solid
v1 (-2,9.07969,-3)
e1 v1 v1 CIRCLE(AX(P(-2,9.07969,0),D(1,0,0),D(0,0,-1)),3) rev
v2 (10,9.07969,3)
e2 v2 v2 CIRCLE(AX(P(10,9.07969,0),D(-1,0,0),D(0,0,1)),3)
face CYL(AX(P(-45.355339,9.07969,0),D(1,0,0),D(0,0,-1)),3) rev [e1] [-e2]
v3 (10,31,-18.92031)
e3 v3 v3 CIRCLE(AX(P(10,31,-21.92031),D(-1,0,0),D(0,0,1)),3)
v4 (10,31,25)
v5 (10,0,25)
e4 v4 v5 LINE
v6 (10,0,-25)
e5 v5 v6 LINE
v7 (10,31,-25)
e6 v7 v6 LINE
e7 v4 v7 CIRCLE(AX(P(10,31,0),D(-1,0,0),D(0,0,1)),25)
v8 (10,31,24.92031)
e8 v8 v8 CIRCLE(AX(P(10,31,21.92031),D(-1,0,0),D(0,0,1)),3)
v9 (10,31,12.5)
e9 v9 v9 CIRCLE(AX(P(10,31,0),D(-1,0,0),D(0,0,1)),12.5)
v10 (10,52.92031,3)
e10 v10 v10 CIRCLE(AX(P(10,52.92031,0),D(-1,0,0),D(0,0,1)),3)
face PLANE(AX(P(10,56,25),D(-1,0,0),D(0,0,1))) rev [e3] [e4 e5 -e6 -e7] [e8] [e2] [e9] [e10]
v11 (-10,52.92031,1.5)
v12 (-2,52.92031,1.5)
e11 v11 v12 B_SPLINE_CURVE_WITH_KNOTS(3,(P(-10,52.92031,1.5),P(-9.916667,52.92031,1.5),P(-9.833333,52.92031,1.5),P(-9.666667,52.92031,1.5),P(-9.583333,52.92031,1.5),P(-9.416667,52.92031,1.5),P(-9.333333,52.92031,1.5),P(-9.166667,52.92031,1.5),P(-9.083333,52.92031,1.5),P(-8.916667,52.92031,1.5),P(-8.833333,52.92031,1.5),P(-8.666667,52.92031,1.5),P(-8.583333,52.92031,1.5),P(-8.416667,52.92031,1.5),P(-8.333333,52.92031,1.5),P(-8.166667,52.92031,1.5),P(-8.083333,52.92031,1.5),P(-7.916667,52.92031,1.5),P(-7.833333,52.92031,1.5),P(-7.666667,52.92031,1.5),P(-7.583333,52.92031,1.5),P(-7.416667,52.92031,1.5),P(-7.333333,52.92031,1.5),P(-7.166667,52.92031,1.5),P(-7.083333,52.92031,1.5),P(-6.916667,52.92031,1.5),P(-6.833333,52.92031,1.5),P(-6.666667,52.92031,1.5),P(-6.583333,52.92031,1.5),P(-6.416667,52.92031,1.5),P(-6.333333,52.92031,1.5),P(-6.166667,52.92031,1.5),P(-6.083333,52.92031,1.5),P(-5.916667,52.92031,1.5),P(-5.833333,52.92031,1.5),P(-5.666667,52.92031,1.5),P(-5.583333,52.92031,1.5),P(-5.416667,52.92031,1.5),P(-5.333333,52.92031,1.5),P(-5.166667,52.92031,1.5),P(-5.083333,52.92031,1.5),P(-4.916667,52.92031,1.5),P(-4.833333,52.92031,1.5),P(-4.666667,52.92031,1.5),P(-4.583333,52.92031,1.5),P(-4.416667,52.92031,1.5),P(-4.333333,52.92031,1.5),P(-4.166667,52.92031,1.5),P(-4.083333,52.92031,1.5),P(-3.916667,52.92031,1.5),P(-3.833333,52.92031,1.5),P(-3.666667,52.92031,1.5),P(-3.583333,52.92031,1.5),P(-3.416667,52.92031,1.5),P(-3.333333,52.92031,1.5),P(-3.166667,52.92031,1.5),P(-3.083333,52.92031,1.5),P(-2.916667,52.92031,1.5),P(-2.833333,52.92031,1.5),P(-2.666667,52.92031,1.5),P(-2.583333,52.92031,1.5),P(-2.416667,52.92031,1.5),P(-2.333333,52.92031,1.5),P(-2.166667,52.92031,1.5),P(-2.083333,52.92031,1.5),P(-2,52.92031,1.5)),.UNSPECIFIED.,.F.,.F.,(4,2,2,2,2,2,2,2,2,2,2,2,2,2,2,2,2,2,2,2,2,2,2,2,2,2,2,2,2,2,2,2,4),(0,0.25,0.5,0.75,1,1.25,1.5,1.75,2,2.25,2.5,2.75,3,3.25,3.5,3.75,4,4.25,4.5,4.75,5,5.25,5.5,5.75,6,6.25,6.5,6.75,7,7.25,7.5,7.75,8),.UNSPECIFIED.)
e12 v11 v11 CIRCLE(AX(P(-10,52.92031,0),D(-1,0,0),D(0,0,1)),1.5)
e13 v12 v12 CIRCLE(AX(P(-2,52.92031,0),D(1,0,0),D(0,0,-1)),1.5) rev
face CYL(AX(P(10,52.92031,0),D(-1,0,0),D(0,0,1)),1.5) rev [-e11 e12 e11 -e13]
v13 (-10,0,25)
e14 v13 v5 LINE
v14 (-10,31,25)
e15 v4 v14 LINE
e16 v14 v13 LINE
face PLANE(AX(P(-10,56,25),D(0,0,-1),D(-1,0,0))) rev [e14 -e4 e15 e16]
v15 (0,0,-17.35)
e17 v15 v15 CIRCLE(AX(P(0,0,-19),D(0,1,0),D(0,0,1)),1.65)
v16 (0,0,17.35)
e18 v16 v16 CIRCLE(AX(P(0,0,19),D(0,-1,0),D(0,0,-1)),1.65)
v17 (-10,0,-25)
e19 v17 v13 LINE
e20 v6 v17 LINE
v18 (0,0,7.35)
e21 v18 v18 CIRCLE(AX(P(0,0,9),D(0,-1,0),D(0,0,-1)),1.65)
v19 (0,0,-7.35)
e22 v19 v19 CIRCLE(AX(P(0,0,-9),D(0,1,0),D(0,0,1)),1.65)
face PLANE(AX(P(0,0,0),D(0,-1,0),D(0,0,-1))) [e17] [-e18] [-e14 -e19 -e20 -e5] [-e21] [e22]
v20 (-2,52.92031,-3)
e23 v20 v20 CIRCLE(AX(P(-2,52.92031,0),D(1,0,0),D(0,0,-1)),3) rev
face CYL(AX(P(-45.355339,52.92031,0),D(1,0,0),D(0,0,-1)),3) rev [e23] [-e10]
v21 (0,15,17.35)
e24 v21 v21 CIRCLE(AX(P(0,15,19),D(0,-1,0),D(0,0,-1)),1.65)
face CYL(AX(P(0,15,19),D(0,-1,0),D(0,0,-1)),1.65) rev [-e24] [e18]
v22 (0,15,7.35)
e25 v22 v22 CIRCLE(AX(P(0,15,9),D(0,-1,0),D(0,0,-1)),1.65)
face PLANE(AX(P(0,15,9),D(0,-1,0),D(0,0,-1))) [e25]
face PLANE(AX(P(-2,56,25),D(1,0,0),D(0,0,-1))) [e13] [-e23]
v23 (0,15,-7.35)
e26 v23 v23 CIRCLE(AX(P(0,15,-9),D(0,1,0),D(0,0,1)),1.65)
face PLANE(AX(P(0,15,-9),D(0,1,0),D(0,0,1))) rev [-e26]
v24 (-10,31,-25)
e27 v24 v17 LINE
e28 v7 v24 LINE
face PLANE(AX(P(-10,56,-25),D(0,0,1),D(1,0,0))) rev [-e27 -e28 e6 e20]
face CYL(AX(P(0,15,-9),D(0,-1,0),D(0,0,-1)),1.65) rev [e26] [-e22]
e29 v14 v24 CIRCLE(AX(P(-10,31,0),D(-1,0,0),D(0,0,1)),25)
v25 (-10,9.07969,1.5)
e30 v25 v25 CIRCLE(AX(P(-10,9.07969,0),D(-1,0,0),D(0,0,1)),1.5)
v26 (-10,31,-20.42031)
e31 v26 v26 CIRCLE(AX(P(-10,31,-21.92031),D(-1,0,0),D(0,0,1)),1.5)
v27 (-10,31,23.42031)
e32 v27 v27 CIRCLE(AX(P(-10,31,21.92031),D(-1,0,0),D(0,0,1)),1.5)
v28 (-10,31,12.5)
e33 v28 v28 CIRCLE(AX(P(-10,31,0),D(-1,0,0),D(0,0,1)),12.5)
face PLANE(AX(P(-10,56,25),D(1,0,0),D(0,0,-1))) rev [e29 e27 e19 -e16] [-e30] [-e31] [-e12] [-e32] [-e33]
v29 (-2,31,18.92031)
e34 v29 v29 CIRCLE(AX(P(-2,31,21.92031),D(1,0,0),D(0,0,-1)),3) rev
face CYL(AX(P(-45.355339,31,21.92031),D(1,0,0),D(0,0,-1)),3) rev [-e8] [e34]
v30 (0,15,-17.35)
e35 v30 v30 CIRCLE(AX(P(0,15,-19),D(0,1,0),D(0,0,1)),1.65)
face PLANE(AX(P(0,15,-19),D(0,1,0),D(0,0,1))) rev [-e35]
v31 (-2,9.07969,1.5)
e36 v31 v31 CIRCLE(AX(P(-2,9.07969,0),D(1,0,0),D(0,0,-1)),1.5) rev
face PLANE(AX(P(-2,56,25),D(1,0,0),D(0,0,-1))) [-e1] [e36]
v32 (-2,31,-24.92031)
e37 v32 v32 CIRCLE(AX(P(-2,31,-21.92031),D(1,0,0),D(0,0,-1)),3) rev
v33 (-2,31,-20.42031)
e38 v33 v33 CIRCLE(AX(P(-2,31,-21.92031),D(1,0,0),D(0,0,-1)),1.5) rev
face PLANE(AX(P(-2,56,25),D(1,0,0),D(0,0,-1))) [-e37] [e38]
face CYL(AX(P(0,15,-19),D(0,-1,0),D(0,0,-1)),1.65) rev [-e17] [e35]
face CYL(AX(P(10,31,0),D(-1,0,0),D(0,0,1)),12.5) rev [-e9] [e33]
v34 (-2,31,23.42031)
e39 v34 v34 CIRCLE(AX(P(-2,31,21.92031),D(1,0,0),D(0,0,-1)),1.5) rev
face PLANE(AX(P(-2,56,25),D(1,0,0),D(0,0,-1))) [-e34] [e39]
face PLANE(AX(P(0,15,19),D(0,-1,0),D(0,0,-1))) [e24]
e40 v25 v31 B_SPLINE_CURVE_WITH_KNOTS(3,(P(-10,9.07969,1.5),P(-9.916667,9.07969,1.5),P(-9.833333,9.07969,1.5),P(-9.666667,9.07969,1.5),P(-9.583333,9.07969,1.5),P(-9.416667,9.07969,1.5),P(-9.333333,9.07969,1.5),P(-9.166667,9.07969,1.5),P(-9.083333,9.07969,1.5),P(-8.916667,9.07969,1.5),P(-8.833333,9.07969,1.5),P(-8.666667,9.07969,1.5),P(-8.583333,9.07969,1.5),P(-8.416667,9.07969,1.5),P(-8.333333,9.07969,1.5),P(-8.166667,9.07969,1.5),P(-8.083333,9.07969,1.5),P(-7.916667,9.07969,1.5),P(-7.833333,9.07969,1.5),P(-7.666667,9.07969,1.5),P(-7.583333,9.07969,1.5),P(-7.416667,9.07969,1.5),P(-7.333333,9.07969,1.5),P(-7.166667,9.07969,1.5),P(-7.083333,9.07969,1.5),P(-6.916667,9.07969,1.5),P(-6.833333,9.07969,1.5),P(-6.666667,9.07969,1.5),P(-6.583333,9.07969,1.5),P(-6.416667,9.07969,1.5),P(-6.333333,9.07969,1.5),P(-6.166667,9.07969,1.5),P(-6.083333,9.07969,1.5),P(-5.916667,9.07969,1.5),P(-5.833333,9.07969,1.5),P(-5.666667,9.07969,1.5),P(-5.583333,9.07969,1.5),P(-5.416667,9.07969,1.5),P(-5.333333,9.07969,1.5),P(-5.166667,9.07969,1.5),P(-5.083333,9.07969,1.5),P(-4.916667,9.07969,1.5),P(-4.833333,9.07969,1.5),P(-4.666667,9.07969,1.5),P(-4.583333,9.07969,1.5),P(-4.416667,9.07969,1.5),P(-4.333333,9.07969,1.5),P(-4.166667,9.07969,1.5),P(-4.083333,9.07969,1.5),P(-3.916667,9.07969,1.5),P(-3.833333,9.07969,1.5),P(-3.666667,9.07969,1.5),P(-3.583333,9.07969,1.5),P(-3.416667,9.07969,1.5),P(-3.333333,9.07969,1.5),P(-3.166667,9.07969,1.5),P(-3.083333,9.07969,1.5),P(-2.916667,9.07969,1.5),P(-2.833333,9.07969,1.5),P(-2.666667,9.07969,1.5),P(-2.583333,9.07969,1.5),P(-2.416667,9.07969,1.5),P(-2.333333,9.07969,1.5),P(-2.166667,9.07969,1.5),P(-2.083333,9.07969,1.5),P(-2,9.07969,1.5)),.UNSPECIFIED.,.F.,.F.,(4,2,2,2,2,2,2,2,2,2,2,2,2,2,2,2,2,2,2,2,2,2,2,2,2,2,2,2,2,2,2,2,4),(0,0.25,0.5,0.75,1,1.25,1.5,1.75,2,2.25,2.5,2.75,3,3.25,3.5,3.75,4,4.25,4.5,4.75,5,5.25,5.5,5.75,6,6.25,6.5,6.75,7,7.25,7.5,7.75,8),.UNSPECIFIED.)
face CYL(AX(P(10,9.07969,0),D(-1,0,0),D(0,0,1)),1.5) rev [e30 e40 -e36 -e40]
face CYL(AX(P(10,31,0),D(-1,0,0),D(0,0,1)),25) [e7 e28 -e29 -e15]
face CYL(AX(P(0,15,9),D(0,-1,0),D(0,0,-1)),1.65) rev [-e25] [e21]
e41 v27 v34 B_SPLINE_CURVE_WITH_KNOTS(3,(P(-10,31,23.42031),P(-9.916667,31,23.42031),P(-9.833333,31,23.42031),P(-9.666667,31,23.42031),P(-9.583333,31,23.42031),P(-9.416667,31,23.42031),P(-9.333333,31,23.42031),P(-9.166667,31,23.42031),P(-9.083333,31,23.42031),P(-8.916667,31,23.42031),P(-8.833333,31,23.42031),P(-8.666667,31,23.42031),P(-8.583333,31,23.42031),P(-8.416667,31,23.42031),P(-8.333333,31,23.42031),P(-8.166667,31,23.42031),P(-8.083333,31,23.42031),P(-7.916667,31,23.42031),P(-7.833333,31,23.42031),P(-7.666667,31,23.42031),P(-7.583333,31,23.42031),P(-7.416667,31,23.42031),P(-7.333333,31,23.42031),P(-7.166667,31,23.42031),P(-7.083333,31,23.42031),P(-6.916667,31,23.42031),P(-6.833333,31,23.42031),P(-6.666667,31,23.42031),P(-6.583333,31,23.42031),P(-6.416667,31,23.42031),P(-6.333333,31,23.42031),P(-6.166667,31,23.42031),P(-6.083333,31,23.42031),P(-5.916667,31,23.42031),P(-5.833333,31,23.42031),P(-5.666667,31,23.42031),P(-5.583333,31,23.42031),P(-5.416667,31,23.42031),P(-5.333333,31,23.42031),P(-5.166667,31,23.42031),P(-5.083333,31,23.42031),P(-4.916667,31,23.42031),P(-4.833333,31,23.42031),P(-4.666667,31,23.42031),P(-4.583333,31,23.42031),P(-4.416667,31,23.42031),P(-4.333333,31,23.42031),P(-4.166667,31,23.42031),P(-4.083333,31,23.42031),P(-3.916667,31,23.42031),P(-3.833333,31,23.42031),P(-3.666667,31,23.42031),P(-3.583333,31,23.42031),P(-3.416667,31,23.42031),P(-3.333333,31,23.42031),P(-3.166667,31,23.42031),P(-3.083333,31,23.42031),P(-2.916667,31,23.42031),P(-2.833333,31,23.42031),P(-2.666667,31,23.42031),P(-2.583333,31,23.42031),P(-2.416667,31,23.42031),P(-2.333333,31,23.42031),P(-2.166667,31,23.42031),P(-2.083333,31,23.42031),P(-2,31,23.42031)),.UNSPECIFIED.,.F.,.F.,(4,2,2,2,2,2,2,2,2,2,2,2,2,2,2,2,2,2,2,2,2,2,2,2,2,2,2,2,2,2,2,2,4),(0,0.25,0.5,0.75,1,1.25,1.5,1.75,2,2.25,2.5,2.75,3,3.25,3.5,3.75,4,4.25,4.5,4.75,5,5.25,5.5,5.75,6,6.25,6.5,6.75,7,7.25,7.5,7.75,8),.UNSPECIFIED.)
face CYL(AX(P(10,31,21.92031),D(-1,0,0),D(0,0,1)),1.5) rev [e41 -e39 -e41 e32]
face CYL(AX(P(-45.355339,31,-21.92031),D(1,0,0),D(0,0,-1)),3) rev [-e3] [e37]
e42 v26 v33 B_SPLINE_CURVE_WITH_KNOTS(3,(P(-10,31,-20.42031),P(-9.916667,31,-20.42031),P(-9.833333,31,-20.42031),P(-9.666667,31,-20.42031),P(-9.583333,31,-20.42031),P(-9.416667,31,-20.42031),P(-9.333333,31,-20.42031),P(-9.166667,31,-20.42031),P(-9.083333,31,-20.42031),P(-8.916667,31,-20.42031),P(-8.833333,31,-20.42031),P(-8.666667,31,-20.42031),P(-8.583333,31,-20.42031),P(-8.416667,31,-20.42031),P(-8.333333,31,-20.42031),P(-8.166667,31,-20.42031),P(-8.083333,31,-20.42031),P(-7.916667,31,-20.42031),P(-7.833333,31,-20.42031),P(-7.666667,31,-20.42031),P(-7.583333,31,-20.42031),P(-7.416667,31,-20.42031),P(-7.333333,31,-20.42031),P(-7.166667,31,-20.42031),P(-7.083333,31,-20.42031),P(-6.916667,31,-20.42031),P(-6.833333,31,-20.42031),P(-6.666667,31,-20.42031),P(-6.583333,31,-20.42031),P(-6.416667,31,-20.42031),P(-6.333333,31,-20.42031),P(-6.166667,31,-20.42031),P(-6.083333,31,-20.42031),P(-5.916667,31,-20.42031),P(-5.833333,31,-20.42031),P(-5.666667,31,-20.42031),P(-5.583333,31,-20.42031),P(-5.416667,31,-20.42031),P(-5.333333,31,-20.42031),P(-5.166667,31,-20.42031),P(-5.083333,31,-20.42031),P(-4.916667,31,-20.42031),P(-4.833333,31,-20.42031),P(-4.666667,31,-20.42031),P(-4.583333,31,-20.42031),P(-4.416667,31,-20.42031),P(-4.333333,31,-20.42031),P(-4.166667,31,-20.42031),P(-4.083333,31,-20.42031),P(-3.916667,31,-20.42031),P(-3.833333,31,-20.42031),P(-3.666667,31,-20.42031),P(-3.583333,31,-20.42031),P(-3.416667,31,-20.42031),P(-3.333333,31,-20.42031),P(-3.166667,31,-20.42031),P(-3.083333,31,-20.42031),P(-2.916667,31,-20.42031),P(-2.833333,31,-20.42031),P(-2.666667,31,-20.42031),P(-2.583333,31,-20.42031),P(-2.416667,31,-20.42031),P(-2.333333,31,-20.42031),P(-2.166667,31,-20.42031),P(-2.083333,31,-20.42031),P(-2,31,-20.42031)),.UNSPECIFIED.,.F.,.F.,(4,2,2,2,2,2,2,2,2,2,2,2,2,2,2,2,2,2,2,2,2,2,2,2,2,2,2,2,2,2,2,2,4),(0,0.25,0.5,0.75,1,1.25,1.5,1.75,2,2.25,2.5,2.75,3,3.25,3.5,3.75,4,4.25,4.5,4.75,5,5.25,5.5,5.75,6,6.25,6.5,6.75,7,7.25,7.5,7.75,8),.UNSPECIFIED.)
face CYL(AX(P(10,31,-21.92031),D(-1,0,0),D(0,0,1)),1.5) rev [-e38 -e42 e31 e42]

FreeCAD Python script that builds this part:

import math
import FreeCAD as App
import Part
import Sketcher
Q = App.Units.Quantity


def add_polygon(sketch, points):
    """Adds a closed chain of lines whose ends are joined by coincident constraints."""
    first, n = sketch.GeometryCount, len(points)
    for a, b in zip(points, points[1:] + points[:1]):
        sketch.addGeometry(Part.LineSegment(App.Vector(*a, 0), App.Vector(*b, 0)), False)
    for i in range(n):
        sketch.addConstraint(Sketcher.Constraint("Coincident", first + i, 2, first + (i + 1) % n, 1))

doc = App.newDocument("Part")
body = doc.addObject("PartDesign::Body", "Body")

sketch1 = doc.addObject("Sketcher::SketchObject", "Sketch")
body.addObject(sketch1)
sketch1.AttachmentSupport = (doc.XZ_Plane, [""])
sketch1.MapMode = "FlatFace"
add_polygon(sketch1, [(-10, -25), (-10, 25), (10, 25), (10, -25)])
sketch1.addConstraint([
    Sketcher.Constraint("Vertical", 0),
    Sketcher.Constraint("Horizontal", 1),
    Sketcher.Constraint("Vertical", 2),
    Sketcher.Constraint("Horizontal", 3),
    Sketcher.Constraint("Symmetric", 0, 2, 2, 2, -1, 1),
    Sketcher.Constraint("DistanceX", 1, 1, 1, 2, Q("20 mm")),
    Sketcher.Constraint("DistanceY", 0, 1, 0, 2, Q("50 mm")),
])
pad1 = doc.addObject("PartDesign::Pad", "Pad")
body.addObject(pad1)
pad1.Profile = sketch1
pad1.Length = 56
pad1.Reversed = True

sketch2 = doc.addObject("Sketcher::SketchObject", "Sketch001")
body.addObject(sketch2)
sketch2.AttachmentSupport = (doc.YZ_Plane, [""])
sketch2.MapMode = "FlatFace"
sketch2.AttachmentOffset = App.Placement(App.Vector(0, 0, -10), App.Rotation())
sketch2.addGeometry([
    Part.LineSegment(App.Vector(56, -25, 0), App.Vector(31, -25, 0)),
    Part.ArcOfCircle(Part.Circle(App.Vector(31, 0, 0), App.Vector(0, 0, 1), 25), math.radians(-90), math.radians(0)),
    Part.LineSegment(App.Vector(56, 0, 0), App.Vector(56, -25, 0)),
    Part.ArcOfCircle(Part.Circle(App.Vector(31, 0, 0), App.Vector(0, 0, 1), 25), math.radians(0), math.radians(90)),
    Part.LineSegment(App.Vector(31, 25, 0), App.Vector(56, 25, 0)),
    Part.LineSegment(App.Vector(56, 25, 0), App.Vector(56, 0, 0)),
    Part.Circle(App.Vector(31, 0, 0), App.Vector(0, 0, 1), 12.5),
], False)
sketch2.addConstraint([
    Sketcher.Constraint("Tangent", 0, 2, 1, 1),
    Sketcher.Constraint("Tangent", 1, 2, 2, 1),
    Sketcher.Constraint("Coincident", 2, 2, 0, 1),
    Sketcher.Constraint("Tangent", 3, 2, 4, 1),
    Sketcher.Constraint("Coincident", 4, 2, 5, 1),
    Sketcher.Constraint("Tangent", 5, 2, 3, 1),
    Sketcher.Constraint("Horizontal", 0),
    Sketcher.Constraint("Vertical", 2),
    Sketcher.Constraint("Horizontal", 4),
    Sketcher.Constraint("Vertical", 5),
    Sketcher.Constraint("Coincident", 3, 3, 1, 3),
    Sketcher.Constraint("Coincident", 6, 3, 1, 3),
    Sketcher.Constraint("Equal", 1, 3),
    Sketcher.Constraint("PointOnObject", 1, 3, -1),
    Sketcher.Constraint("Diameter", 6, Q("25 mm")),
    Sketcher.Constraint("Radius", 1, Q("25 mm")),
    Sketcher.Constraint("DistanceX", -1, 1, 1, 3, Q("31 mm")),
])
pocket1 = doc.addObject("PartDesign::Pocket", "Pocket")
body.addObject(pocket1)
pocket1.Profile = sketch2
pocket1.Type = "ThroughAll"
pocket1.Reversed = True

sketch3 = doc.addObject("Sketcher::SketchObject", "Sketch002")
body.addObject(sketch3)
sketch3.AttachmentSupport = (doc.XZ_Plane, [""])
sketch3.MapMode = "FlatFace"
sketch3.addGeometry([
    Part.Circle(App.Vector(0, 19, 0), App.Vector(0, 0, 1), 1.65),
    Part.Circle(App.Vector(0, 9, 0), App.Vector(0, 0, 1), 1.65),
    Part.Circle(App.Vector(0, -9, 0), App.Vector(0, 0, 1), 1.65),
    Part.Circle(App.Vector(0, -19, 0), App.Vector(0, 0, 1), 1.65),
], False)
sketch3.addConstraint([
    Sketcher.Constraint("Equal", 0, 1),
    Sketcher.Constraint("Equal", 1, 2),
    Sketcher.Constraint("Equal", 2, 3),
    Sketcher.Constraint("Symmetric", 1, 3, 2, 3, -1, 1),
    Sketcher.Constraint("Symmetric", 0, 3, 3, 3, -1, 1),
    Sketcher.Constraint("PointOnObject", 0, 3, -2),
    Sketcher.Constraint("PointOnObject", 1, 3, -2),
    Sketcher.Constraint("Diameter", 0, Q("3.3 mm")),
    Sketcher.Constraint("DistanceY", -1, 1, 0, 3, Q("19 mm")),
    Sketcher.Constraint("DistanceY", -1, 1, 1, 3, Q("9 mm")),
])
pocket2 = doc.addObject("PartDesign::Pocket", "Pocket001")
body.addObject(pocket2)
pocket2.Profile = sketch3
pocket2.Length = 15

sketch4 = doc.addObject("Sketcher::SketchObject", "Sketch003")
body.addObject(sketch4)
sketch4.AttachmentSupport = (doc.YZ_Plane, [""])
sketch4.MapMode = "FlatFace"
sketch4.AttachmentOffset = App.Placement(App.Vector(0, 0, -10), App.Rotation())
sketch4.addGeometry([
    Part.Circle(App.Vector(31, -21.92031, 0), App.Vector(0, 0, 1), 1.5),
    Part.Circle(App.Vector(52.92031, 0, 0), App.Vector(0, 0, 1), 1.5),
    Part.Circle(App.Vector(31, 21.92031, 0), App.Vector(0, 0, 1), 1.5),
    Part.Circle(App.Vector(9.07969, 0, 0), App.Vector(0, 0, 1), 1.5),
], False)
sketch4.addConstraint([
    Sketcher.Constraint("Equal", 0, 1),
    Sketcher.Constraint("Equal", 1, 2),
    Sketcher.Constraint("Equal", 2, 3),
    Sketcher.Constraint("Symmetric", 0, 3, 2, 3, -1),
    Sketcher.Constraint("PointOnObject", 1, 3, -1),
    Sketcher.Constraint("PointOnObject", 3, 3, -1),
    Sketcher.Constraint("Diameter", 0, Q("3 mm")),
    Sketcher.Constraint("DistanceX", -1, 1, 0, 3, Q("31 mm")),
    Sketcher.Constraint("DistanceY", 0, 3, -1, 1, Q("21.92031 mm")),
    Sketcher.Constraint("DistanceX", -1, 1, 1, 3, Q("52.92031 mm")),
    Sketcher.Constraint("DistanceX", -1, 1, 3, 3, Q("9.07969 mm")),
])
pocket3 = doc.addObject("PartDesign::Pocket", "Pocket002")
body.addObject(pocket3)
pocket3.Profile = sketch4
pocket3.Length = 20
pocket3.Reversed = True

sketch5 = doc.addObject("Sketcher::SketchObject", "Sketch004")
body.addObject(sketch5)
sketch5.AttachmentSupport = (doc.YZ_Plane, [""])
sketch5.MapMode = "FlatFace"
sketch5.AttachmentOffset = App.Placement(App.Vector(0, 0, 10), App.Rotation())
sketch5.addGeometry([
    Part.Circle(App.Vector(31, 0, 0), App.Vector(0, 0, 1), 12.5),
    Part.Circle(App.Vector(31, -21.92031, 0), App.Vector(0, 0, 1), 3),
    Part.Circle(App.Vector(9.07969, 0, 0), App.Vector(0, 0, 1), 3),
    Part.Circle(App.Vector(31, 21.92031, 0), App.Vector(0, 0, 1), 3),
    Part.Circle(App.Vector(52.92031, 0, 0), App.Vector(0, 0, 1), 3),
], False)
sketch5.addConstraint([
    Sketcher.Constraint("Equal", 1, 2),
    Sketcher.Constraint("Equal", 2, 3),
    Sketcher.Constraint("Equal", 3, 4),
    Sketcher.Constraint("Symmetric", 1, 3, 3, 3, -1),
    Sketcher.Constraint("PointOnObject", 0, 3, -1),
    Sketcher.Constraint("PointOnObject", 2, 3, -1),
    Sketcher.Constraint("PointOnObject", 4, 3, -1),
    Sketcher.Constraint("Vertical", 0, 3, 1, 3),
    Sketcher.Constraint("Diameter", 0, Q("25 mm")),
    Sketcher.Constraint("Diameter", 1, Q("6 mm")),
    Sketcher.Constraint("DistanceX", -1, 1, 0, 3, Q("31 mm")),
    Sketcher.Constraint("DistanceY", 1, 3, -1, 1, Q("21.92031 mm")),
    Sketcher.Constraint("DistanceX", -1, 1, 2, 3, Q("9.07969 mm")),
    Sketcher.Constraint("DistanceX", -1, 1, 4, 3, Q("52.92031 mm")),
])
pocket4 = doc.addObject("PartDesign::Pocket", "Pocket003")
body.addObject(pocket4)
pocket4.Profile = sketch5
pocket4.Type = "TwoLengths"
pocket4.Length = 65.505814
pocket4.Length2 = 12
pocket4.Reversed = True

doc.recompute()
